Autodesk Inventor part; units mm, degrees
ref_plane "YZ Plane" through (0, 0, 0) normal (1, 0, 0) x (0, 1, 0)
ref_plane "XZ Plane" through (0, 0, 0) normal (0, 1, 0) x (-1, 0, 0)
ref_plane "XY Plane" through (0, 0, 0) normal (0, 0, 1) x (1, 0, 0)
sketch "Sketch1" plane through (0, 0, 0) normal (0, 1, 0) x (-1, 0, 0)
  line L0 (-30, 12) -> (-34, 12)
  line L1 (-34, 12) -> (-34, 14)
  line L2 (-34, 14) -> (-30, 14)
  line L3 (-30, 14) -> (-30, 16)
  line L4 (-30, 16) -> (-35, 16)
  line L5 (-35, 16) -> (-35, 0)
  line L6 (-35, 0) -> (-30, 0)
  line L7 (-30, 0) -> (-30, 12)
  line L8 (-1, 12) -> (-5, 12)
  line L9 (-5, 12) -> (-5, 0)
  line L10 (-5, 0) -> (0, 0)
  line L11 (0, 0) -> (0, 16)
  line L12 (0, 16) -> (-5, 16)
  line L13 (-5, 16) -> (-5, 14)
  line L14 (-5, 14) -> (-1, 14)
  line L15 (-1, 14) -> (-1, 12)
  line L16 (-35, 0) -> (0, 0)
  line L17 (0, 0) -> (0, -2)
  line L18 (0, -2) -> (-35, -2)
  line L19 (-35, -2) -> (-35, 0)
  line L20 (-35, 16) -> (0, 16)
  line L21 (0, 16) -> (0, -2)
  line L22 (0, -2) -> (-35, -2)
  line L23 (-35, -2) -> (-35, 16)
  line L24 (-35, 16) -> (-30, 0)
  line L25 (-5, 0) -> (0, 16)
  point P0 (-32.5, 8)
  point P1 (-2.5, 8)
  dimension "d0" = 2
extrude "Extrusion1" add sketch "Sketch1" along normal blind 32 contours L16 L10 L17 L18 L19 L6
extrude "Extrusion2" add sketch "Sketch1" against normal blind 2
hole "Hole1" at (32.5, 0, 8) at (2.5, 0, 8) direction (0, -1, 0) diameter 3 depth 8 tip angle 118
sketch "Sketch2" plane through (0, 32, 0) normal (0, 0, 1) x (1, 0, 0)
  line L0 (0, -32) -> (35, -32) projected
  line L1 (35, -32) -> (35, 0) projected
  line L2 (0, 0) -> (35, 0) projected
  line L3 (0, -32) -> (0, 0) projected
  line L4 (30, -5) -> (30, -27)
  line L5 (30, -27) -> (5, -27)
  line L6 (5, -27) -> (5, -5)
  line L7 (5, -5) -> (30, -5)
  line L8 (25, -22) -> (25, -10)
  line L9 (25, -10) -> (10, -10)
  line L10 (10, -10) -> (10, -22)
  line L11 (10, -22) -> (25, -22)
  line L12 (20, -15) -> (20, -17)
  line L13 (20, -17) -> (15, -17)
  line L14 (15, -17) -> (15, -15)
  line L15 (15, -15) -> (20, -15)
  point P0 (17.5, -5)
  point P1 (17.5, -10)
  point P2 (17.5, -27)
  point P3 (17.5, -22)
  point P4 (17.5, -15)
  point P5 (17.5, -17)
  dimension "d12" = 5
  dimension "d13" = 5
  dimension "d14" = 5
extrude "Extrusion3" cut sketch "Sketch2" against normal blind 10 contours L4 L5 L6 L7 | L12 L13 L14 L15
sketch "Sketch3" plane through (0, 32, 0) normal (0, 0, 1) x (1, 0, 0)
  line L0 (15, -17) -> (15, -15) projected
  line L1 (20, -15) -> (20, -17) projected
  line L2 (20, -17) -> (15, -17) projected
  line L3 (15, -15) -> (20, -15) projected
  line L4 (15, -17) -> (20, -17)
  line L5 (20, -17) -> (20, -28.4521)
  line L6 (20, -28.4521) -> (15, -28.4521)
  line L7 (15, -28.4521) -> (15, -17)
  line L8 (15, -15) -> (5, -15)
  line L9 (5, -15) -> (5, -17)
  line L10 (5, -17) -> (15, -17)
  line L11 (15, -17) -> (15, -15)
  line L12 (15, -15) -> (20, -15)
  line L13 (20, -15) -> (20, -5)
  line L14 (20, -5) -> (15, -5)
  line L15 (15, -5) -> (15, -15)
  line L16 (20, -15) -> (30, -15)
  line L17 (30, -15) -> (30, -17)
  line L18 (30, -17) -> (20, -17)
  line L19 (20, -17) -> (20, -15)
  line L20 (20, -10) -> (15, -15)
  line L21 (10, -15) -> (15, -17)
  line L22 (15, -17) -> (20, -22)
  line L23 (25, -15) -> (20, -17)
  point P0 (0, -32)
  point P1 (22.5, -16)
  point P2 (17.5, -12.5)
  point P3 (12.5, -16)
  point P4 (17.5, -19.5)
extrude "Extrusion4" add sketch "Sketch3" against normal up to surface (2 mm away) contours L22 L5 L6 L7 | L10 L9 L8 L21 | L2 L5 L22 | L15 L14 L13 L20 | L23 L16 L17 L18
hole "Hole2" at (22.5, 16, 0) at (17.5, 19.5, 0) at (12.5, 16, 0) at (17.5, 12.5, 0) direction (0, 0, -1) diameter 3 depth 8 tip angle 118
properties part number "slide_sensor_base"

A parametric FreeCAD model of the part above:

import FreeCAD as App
import Part
import Sketcher

doc = App.newDocument("Part")
body = doc.addObject("PartDesign::Body", "Body")
body.AllowCompound = True

# Sketch on XZ plane
sketch1 = body.newObject("Sketcher::SketchObject", "Sketch")
sketch1.AttachmentSupport = (doc.getObject("XZ_Plane"), [""])
sketch1.MapMode = "FlatFace"
sketch1.addGeometry([
    Part.LineSegment(App.Vector(0, 0, 0), App.Vector(35, 0, 0)),
    Part.LineSegment(App.Vector(35, 0, 0), App.Vector(35, -2, 0)),
    Part.LineSegment(App.Vector(35, -2, 0), App.Vector(0, -2, 0)),
    Part.LineSegment(App.Vector(0, -2, 0), App.Vector(0, 0, 0)),
], False)
sketch1.addConstraint([
    Sketcher.Constraint("Coincident", 0, 2, 1, 1),
    Sketcher.Constraint("Coincident", 1, 2, 2, 1),
    Sketcher.Constraint("Coincident", 2, 2, 3, 1),
    Sketcher.Constraint("Coincident", 3, 2, 0, 1),
    Sketcher.Constraint("Horizontal", 0),
    Sketcher.Constraint("Vertical", 1),
    Sketcher.Constraint("Horizontal", 2),
    Sketcher.Constraint("Vertical", 3),
    Sketcher.Constraint("Coincident", 3, 2, -1, 1),
    Sketcher.Constraint("DistanceY", 1, 2, 1, 1, 2.0),
    Sketcher.Constraint("DistanceX", 0, 1, 0, 2, 35.0),
])
pad1 = body.newObject("PartDesign::Pad", "Pad")
pad1.Profile = sketch1
pad1.Length = 32
pad1.Reversed = True

# Sketch on XZ plane
sketch2 = body.newObject("Sketcher::SketchObject", "Sketch001")
sketch2.AttachmentSupport = (doc.getObject("XZ_Plane"), [""])
sketch2.MapMode = "FlatFace"
sketch2.addGeometry([
    Part.LineSegment(App.Vector(35, 16, 0), App.Vector(35, -2, 0)),
    Part.LineSegment(App.Vector(35, -2, 0), App.Vector(0, -2, 0)),
    Part.LineSegment(App.Vector(0, -2, 0), App.Vector(0, 16, 0)),
    Part.LineSegment(App.Vector(0, 16, 0), App.Vector(35, 16, 0)),
], False)
sketch2.addConstraint([
    Sketcher.Constraint("Coincident", 0, 2, 1, 1),
    Sketcher.Constraint("Coincident", 1, 2, 2, 1),
    Sketcher.Constraint("Coincident", 2, 2, 3, 1),
    Sketcher.Constraint("Coincident", 3, 2, 0, 1),
    Sketcher.Constraint("Vertical", 0),
    Sketcher.Constraint("Horizontal", 1),
    Sketcher.Constraint("Vertical", 2),
    Sketcher.Constraint("Horizontal", 3),
    Sketcher.Constraint("PointOnObject", 1, 2, -2),
    Sketcher.Constraint("DistanceY", 0, 2, -1, 1, 2.0),
    Sketcher.Constraint("DistanceX", 1, 2, 1, 1, 35.0),
    Sketcher.Constraint("DistanceY", 0, 2, 0, 1, 18.0),
])
pad2 = body.newObject("PartDesign::Pad", "Pad001")
pad2.Profile = sketch2
pad2.Length = 2

# Sketch on XZ plane
sketch3 = body.newObject("Sketcher::SketchObject", "Sketch002")
sketch3.AttachmentSupport = (doc.getObject("XZ_Plane"), [""])
sketch3.MapMode = "FlatFace"
sketch3.addGeometry([
    Part.Circle(App.Vector(32.5, 8, 0), App.Vector(0, 0, 1), 1.5),
    Part.Circle(App.Vector(2.5, 8, 0), App.Vector(0, 0, 1), 1.5),
], False)
sketch3.addConstraint([
    Sketcher.Constraint("Equal", 0, 1),
    Sketcher.Constraint("Horizontal", 0, 3, 1, 3),
    Sketcher.Constraint("Diameter", 0, 3.0),
    Sketcher.Constraint("DistanceY", -1, 1, 0, 3, 8.0),
    Sketcher.Constraint("DistanceX", 1, 3, 0, 3, 30.0),
    Sketcher.Constraint("DistanceX", -1, 1, 0, 3, 32.5),
])
doc.recompute()
hole = body.newObject("PartDesign::Hole", "Hole")
hole.Profile = sketch3
hole.ThreadType = "None"
hole.Diameter = 3
hole.DepthType = "Dimension"
hole.Depth = 8
hole.DrillPoint = "Angled"
hole.DrillPointAngle = 118
hole.Reversed = True

# Sketch on XY plane
sketch4 = body.newObject("Sketcher::SketchObject", "Sketch003")
sketch4.AttachmentSupport = (doc.getObject("XY_Plane"), [""])
sketch4.MapMode = "FlatFace"
sketch4.addGeometry([
    Part.LineSegment(App.Vector(30, 5, 0), App.Vector(30, 27, 0)),  # 0
    Part.LineSegment(App.Vector(30, 27, 0), App.Vector(5, 27, 0)),  # 1
    Part.LineSegment(App.Vector(5, 27, 0), App.Vector(5, 5, 0)),  # 2
    Part.LineSegment(App.Vector(5, 5, 0), App.Vector(30, 5, 0)),  # 3
    Part.LineSegment(App.Vector(25, 22, 0), App.Vector(25, 10, 0)),  # 4
    Part.LineSegment(App.Vector(25, 10, 0), App.Vector(10, 10, 0)),  # 5
    Part.LineSegment(App.Vector(10, 10, 0), App.Vector(10, 22, 0)),  # 6
    Part.LineSegment(App.Vector(10, 22, 0), App.Vector(25, 22, 0)),  # 7
    Part.LineSegment(App.Vector(20, 15, 0), App.Vector(20, 17, 0)),  # 8
    Part.LineSegment(App.Vector(20, 17, 0), App.Vector(15, 17, 0)),  # 9
    Part.LineSegment(App.Vector(15, 17, 0), App.Vector(15, 15, 0)),  # 10
    Part.LineSegment(App.Vector(15, 15, 0), App.Vector(20, 15, 0)),  # 11
], False)
sketch4.addConstraint([
    Sketcher.Constraint("Coincident", 0, 2, 1, 1),
    Sketcher.Constraint("Coincident", 1, 2, 2, 1),
    Sketcher.Constraint("Coincident", 2, 2, 3, 1),
    Sketcher.Constraint("Coincident", 3, 2, 0, 1),
    Sketcher.Constraint("Coincident", 4, 2, 5, 1),
    Sketcher.Constraint("Coincident", 5, 2, 6, 1),
    Sketcher.Constraint("Coincident", 6, 2, 7, 1),
    Sketcher.Constraint("Coincident", 7, 2, 4, 1),
    Sketcher.Constraint("Coincident", 8, 2, 9, 1),
    Sketcher.Constraint("Coincident", 9, 2, 10, 1),
    Sketcher.Constraint("Coincident", 10, 2, 11, 1),
    Sketcher.Constraint("Coincident", 11, 2, 8, 1),
    Sketcher.Constraint("Vertical", 0),
    Sketcher.Constraint("Horizontal", 1),
    Sketcher.Constraint("Vertical", 2),
    Sketcher.Constraint("Horizontal", 3),
    Sketcher.Constraint("Vertical", 4),
    Sketcher.Constraint("Horizontal", 5),
    Sketcher.Constraint("Vertical", 6),
    Sketcher.Constraint("Horizontal", 7),
    Sketcher.Constraint("Vertical", 8),
    Sketcher.Constraint("Horizontal", 9),
    Sketcher.Constraint("Vertical", 10),
    Sketcher.Constraint("Horizontal", 11),
    Sketcher.Constraint("DistanceX", 9, 2, 9, 1, 5.0),
    Sketcher.Constraint("DistanceX", -1, 1, 1, 2, 5.0),
    Sketcher.Constraint("DistanceY", -1, 1, 2, 2, 5.0),
    Sketcher.Constraint("DistanceX", 4, 2, 3, 2, 5.0),
    Sketcher.Constraint("DistanceY", 3, 2, 4, 2, 5.0),
    Sketcher.Constraint("DistanceX", 2, 2, 5, 2, 5.0),
    Sketcher.Constraint("DistanceY", 6, 2, 1, 2, 5.0),
    Sketcher.Constraint("DistanceX", 8, 2, 7, 2, 5.0),
    Sketcher.Constraint("DistanceY", 8, 2, 7, 2, 5.0),
    Sketcher.Constraint("DistanceX", 6, 2, 9, 2, 5.0),
    Sketcher.Constraint("DistanceY", 5, 2, 10, 2, 5.0),
    Sketcher.Constraint("DistanceY", 0, 1, 0, 2, 22.0),
])
pocket1 = body.newObject("PartDesign::Pocket", "Pocket")
pocket1.Profile = sketch4
pocket1.Length = 10

# Sketch on XY plane
sketch5 = body.newObject("Sketcher::SketchObject", "Sketch004")
sketch5.AttachmentSupport = (doc.getObject("XY_Plane"), [""])
sketch5.MapMode = "FlatFace"
sketch5.addGeometry([
    Part.LineSegment(App.Vector(20, 3.5, 0), App.Vector(20, 15, 0)),  # 0
    Part.LineSegment(App.Vector(20, 15, 0), App.Vector(15, 15, 0)),  # 1
    Part.LineSegment(App.Vector(15, 15, 0), App.Vector(15, 3.5, 0)),  # 2
    Part.LineSegment(App.Vector(15, 3.5, 0), App.Vector(20, 3.5, 0)),  # 3
    Part.LineSegment(App.Vector(5, 15, 0), App.Vector(15, 15, 0)),  # 4
    Part.LineSegment(App.Vector(15, 15, 0), App.Vector(10, 17, 0)),  # 5
    Part.LineSegment(App.Vector(10, 17, 0), App.Vector(5, 17, 0)),  # 6
    Part.LineSegment(App.Vector(5, 17, 0), App.Vector(5, 15, 0)),  # 7
    Part.LineSegment(App.Vector(15, 27, 0), App.Vector(15, 17, 0)),  # 8
    Part.LineSegment(App.Vector(15, 17, 0), App.Vector(20, 22, 0)),  # 9
    Part.LineSegment(App.Vector(20, 22, 0), App.Vector(20, 27, 0)),  # 10
    Part.LineSegment(App.Vector(20, 27, 0), App.Vector(15, 27, 0)),  # 11
    Part.LineSegment(App.Vector(25, 17, 0), App.Vector(20, 15, 0)),  # 12
    Part.LineSegment(App.Vector(20, 15, 0), App.Vector(30, 15, 0)),  # 13
    Part.LineSegment(App.Vector(30, 15, 0), App.Vector(30, 17, 0)),  # 14
    Part.LineSegment(App.Vector(30, 17, 0), App.Vector(25, 17, 0)),  # 15
], False)
sketch5.addConstraint([
    Sketcher.Constraint("Coincident", 0, 2, 1, 1),
    Sketcher.Constraint("Coincident", 1, 2, 2, 1),
    Sketcher.Constraint("Coincident", 2, 2, 3, 1),
    Sketcher.Constraint("Coincident", 3, 2, 0, 1),
    Sketcher.Constraint("Coincident", 4, 2, 5, 1),
    Sketcher.Constraint("Coincident", 5, 2, 6, 1),
    Sketcher.Constraint("Coincident", 6, 2, 7, 1),
    Sketcher.Constraint("Coincident", 7, 2, 4, 1),
    Sketcher.Constraint("Coincident", 8, 2, 9, 1),
    Sketcher.Constraint("Coincident", 9, 2, 10, 1),
    Sketcher.Constraint("Coincident", 10, 2, 11, 1),
    Sketcher.Constraint("Coincident", 11, 2, 8, 1),
    Sketcher.Constraint("Coincident", 12, 2, 13, 1),
    Sketcher.Constraint("Coincident", 13, 2, 14, 1),
    Sketcher.Constraint("Coincident", 14, 2, 15, 1),
    Sketcher.Constraint("Coincident", 15, 2, 12, 1),
    Sketcher.Constraint("Vertical", 0),
    Sketcher.Constraint("Horizontal", 1),
    Sketcher.Constraint("Vertical", 2),
    Sketcher.Constraint("Horizontal", 3),
    Sketcher.Constraint("Horizontal", 4),
    Sketcher.Constraint("Horizontal", 6),
    Sketcher.Constraint("Vertical", 7),
    Sketcher.Constraint("Vertical", 8),
    Sketcher.Constraint("Vertical", 10),
    Sketcher.Constraint("Horizontal", 11),
    Sketcher.Constraint("Horizontal", 13),
    Sketcher.Constraint("Vertical", 14),
    Sketcher.Constraint("Horizontal", 15),
    Sketcher.Constraint("Coincident", 4, 2, 1, 2),
    Sketcher.Constraint("Coincident", 12, 2, 0, 2),
    Sketcher.Constraint("Horizontal", 6, 2, 8, 2),
    Sketcher.Constraint("Horizontal", 8, 2, 14, 2),
    Sketcher.Constraint("Vertical", 4, 2, 8, 2),
    Sketcher.Constraint("Vertical", 3, 2, 9, 2),
    Sketcher.Constraint("Equal", 3, 6),
    Sketcher.Constraint("Equal", 4, 13),
    Sketcher.Constraint("Equal", 11, 15),
    Sketcher.Constraint("Equal", 13, 8),
    Sketcher.Constraint("Equal", 15, 10),
    Sketcher.Constraint("DistanceX", 1, 2, 1, 1, 5.0),
    Sketcher.Constraint("DistanceX", 4, 1, 4, 2, 10.0),
    Sketcher.Constraint("DistanceY", 7, 2, 7, 1, 2.0),
    Sketcher.Constraint("DistanceX", -1, 1, 0, 2, 20.0),
    Sketcher.Constraint("DistanceY", -1, 1, 0, 2, 15.0),
    Sketcher.Constraint("DistanceY", 0, 1, 0, 2, 11.452),
])
pad3 = body.newObject("PartDesign::Pad", "Pad002")
pad3.Profile = sketch5
pad3.Length = 2
pad3.Reversed = True

# Sketch on XY plane
sketch6 = body.newObject("Sketcher::SketchObject", "Sketch005")
sketch6.AttachmentSupport = (doc.getObject("XY_Plane"), [""])
sketch6.MapMode = "FlatFace"
sketch6.addGeometry([
    Part.Circle(App.Vector(22.5, 16, 0), App.Vector(0, 0, 1), 1.5),
    Part.Circle(App.Vector(17.5, 19.5, 0), App.Vector(0, 0, 1), 1.5),
    Part.Circle(App.Vector(12.5, 16, 0), App.Vector(0, 0, 1), 1.5),
    Part.Circle(App.Vector(17.5, 12.5, 0), App.Vector(0, 0, 1), 1.5),
], False)
sketch6.addConstraint([
    Sketcher.Constraint("Equal", 0, 1),
    Sketcher.Constraint("Equal", 1, 2),
    Sketcher.Constraint("Equal", 2, 3),
    Sketcher.Constraint("Horizontal", 0, 3, 2, 3),
    Sketcher.Constraint("Vertical", 1, 3, 3, 3),
    Sketcher.Constraint("Diameter", 0, 3.0),
    Sketcher.Constraint("DistanceY", -1, 1, 0, 3, 16.0),
    Sketcher.Constraint("DistanceX", 1, 3, 0, 3, 5.0),
    Sketcher.Constraint("DistanceX", 2, 3, 1, 3, 5.0),
    Sketcher.Constraint("DistanceY", 3, 3, 1, 3, 7.0),
    Sketcher.Constraint("DistanceX", -1, 1, 0, 3, 22.5),
    Sketcher.Constraint("DistanceY", -1, 1, 1, 3, 19.5),
])
doc.recompute()
hole2 = body.newObject("PartDesign::Hole", "Hole001")
hole2.Profile = sketch6
hole2.ThreadType = "None"
hole2.Diameter = 3
hole2.DepthType = "Dimension"
hole2.Depth = 8
hole2.DrillPoint = "Angled"
hole2.DrillPointAngle = 118

doc.recompute()
